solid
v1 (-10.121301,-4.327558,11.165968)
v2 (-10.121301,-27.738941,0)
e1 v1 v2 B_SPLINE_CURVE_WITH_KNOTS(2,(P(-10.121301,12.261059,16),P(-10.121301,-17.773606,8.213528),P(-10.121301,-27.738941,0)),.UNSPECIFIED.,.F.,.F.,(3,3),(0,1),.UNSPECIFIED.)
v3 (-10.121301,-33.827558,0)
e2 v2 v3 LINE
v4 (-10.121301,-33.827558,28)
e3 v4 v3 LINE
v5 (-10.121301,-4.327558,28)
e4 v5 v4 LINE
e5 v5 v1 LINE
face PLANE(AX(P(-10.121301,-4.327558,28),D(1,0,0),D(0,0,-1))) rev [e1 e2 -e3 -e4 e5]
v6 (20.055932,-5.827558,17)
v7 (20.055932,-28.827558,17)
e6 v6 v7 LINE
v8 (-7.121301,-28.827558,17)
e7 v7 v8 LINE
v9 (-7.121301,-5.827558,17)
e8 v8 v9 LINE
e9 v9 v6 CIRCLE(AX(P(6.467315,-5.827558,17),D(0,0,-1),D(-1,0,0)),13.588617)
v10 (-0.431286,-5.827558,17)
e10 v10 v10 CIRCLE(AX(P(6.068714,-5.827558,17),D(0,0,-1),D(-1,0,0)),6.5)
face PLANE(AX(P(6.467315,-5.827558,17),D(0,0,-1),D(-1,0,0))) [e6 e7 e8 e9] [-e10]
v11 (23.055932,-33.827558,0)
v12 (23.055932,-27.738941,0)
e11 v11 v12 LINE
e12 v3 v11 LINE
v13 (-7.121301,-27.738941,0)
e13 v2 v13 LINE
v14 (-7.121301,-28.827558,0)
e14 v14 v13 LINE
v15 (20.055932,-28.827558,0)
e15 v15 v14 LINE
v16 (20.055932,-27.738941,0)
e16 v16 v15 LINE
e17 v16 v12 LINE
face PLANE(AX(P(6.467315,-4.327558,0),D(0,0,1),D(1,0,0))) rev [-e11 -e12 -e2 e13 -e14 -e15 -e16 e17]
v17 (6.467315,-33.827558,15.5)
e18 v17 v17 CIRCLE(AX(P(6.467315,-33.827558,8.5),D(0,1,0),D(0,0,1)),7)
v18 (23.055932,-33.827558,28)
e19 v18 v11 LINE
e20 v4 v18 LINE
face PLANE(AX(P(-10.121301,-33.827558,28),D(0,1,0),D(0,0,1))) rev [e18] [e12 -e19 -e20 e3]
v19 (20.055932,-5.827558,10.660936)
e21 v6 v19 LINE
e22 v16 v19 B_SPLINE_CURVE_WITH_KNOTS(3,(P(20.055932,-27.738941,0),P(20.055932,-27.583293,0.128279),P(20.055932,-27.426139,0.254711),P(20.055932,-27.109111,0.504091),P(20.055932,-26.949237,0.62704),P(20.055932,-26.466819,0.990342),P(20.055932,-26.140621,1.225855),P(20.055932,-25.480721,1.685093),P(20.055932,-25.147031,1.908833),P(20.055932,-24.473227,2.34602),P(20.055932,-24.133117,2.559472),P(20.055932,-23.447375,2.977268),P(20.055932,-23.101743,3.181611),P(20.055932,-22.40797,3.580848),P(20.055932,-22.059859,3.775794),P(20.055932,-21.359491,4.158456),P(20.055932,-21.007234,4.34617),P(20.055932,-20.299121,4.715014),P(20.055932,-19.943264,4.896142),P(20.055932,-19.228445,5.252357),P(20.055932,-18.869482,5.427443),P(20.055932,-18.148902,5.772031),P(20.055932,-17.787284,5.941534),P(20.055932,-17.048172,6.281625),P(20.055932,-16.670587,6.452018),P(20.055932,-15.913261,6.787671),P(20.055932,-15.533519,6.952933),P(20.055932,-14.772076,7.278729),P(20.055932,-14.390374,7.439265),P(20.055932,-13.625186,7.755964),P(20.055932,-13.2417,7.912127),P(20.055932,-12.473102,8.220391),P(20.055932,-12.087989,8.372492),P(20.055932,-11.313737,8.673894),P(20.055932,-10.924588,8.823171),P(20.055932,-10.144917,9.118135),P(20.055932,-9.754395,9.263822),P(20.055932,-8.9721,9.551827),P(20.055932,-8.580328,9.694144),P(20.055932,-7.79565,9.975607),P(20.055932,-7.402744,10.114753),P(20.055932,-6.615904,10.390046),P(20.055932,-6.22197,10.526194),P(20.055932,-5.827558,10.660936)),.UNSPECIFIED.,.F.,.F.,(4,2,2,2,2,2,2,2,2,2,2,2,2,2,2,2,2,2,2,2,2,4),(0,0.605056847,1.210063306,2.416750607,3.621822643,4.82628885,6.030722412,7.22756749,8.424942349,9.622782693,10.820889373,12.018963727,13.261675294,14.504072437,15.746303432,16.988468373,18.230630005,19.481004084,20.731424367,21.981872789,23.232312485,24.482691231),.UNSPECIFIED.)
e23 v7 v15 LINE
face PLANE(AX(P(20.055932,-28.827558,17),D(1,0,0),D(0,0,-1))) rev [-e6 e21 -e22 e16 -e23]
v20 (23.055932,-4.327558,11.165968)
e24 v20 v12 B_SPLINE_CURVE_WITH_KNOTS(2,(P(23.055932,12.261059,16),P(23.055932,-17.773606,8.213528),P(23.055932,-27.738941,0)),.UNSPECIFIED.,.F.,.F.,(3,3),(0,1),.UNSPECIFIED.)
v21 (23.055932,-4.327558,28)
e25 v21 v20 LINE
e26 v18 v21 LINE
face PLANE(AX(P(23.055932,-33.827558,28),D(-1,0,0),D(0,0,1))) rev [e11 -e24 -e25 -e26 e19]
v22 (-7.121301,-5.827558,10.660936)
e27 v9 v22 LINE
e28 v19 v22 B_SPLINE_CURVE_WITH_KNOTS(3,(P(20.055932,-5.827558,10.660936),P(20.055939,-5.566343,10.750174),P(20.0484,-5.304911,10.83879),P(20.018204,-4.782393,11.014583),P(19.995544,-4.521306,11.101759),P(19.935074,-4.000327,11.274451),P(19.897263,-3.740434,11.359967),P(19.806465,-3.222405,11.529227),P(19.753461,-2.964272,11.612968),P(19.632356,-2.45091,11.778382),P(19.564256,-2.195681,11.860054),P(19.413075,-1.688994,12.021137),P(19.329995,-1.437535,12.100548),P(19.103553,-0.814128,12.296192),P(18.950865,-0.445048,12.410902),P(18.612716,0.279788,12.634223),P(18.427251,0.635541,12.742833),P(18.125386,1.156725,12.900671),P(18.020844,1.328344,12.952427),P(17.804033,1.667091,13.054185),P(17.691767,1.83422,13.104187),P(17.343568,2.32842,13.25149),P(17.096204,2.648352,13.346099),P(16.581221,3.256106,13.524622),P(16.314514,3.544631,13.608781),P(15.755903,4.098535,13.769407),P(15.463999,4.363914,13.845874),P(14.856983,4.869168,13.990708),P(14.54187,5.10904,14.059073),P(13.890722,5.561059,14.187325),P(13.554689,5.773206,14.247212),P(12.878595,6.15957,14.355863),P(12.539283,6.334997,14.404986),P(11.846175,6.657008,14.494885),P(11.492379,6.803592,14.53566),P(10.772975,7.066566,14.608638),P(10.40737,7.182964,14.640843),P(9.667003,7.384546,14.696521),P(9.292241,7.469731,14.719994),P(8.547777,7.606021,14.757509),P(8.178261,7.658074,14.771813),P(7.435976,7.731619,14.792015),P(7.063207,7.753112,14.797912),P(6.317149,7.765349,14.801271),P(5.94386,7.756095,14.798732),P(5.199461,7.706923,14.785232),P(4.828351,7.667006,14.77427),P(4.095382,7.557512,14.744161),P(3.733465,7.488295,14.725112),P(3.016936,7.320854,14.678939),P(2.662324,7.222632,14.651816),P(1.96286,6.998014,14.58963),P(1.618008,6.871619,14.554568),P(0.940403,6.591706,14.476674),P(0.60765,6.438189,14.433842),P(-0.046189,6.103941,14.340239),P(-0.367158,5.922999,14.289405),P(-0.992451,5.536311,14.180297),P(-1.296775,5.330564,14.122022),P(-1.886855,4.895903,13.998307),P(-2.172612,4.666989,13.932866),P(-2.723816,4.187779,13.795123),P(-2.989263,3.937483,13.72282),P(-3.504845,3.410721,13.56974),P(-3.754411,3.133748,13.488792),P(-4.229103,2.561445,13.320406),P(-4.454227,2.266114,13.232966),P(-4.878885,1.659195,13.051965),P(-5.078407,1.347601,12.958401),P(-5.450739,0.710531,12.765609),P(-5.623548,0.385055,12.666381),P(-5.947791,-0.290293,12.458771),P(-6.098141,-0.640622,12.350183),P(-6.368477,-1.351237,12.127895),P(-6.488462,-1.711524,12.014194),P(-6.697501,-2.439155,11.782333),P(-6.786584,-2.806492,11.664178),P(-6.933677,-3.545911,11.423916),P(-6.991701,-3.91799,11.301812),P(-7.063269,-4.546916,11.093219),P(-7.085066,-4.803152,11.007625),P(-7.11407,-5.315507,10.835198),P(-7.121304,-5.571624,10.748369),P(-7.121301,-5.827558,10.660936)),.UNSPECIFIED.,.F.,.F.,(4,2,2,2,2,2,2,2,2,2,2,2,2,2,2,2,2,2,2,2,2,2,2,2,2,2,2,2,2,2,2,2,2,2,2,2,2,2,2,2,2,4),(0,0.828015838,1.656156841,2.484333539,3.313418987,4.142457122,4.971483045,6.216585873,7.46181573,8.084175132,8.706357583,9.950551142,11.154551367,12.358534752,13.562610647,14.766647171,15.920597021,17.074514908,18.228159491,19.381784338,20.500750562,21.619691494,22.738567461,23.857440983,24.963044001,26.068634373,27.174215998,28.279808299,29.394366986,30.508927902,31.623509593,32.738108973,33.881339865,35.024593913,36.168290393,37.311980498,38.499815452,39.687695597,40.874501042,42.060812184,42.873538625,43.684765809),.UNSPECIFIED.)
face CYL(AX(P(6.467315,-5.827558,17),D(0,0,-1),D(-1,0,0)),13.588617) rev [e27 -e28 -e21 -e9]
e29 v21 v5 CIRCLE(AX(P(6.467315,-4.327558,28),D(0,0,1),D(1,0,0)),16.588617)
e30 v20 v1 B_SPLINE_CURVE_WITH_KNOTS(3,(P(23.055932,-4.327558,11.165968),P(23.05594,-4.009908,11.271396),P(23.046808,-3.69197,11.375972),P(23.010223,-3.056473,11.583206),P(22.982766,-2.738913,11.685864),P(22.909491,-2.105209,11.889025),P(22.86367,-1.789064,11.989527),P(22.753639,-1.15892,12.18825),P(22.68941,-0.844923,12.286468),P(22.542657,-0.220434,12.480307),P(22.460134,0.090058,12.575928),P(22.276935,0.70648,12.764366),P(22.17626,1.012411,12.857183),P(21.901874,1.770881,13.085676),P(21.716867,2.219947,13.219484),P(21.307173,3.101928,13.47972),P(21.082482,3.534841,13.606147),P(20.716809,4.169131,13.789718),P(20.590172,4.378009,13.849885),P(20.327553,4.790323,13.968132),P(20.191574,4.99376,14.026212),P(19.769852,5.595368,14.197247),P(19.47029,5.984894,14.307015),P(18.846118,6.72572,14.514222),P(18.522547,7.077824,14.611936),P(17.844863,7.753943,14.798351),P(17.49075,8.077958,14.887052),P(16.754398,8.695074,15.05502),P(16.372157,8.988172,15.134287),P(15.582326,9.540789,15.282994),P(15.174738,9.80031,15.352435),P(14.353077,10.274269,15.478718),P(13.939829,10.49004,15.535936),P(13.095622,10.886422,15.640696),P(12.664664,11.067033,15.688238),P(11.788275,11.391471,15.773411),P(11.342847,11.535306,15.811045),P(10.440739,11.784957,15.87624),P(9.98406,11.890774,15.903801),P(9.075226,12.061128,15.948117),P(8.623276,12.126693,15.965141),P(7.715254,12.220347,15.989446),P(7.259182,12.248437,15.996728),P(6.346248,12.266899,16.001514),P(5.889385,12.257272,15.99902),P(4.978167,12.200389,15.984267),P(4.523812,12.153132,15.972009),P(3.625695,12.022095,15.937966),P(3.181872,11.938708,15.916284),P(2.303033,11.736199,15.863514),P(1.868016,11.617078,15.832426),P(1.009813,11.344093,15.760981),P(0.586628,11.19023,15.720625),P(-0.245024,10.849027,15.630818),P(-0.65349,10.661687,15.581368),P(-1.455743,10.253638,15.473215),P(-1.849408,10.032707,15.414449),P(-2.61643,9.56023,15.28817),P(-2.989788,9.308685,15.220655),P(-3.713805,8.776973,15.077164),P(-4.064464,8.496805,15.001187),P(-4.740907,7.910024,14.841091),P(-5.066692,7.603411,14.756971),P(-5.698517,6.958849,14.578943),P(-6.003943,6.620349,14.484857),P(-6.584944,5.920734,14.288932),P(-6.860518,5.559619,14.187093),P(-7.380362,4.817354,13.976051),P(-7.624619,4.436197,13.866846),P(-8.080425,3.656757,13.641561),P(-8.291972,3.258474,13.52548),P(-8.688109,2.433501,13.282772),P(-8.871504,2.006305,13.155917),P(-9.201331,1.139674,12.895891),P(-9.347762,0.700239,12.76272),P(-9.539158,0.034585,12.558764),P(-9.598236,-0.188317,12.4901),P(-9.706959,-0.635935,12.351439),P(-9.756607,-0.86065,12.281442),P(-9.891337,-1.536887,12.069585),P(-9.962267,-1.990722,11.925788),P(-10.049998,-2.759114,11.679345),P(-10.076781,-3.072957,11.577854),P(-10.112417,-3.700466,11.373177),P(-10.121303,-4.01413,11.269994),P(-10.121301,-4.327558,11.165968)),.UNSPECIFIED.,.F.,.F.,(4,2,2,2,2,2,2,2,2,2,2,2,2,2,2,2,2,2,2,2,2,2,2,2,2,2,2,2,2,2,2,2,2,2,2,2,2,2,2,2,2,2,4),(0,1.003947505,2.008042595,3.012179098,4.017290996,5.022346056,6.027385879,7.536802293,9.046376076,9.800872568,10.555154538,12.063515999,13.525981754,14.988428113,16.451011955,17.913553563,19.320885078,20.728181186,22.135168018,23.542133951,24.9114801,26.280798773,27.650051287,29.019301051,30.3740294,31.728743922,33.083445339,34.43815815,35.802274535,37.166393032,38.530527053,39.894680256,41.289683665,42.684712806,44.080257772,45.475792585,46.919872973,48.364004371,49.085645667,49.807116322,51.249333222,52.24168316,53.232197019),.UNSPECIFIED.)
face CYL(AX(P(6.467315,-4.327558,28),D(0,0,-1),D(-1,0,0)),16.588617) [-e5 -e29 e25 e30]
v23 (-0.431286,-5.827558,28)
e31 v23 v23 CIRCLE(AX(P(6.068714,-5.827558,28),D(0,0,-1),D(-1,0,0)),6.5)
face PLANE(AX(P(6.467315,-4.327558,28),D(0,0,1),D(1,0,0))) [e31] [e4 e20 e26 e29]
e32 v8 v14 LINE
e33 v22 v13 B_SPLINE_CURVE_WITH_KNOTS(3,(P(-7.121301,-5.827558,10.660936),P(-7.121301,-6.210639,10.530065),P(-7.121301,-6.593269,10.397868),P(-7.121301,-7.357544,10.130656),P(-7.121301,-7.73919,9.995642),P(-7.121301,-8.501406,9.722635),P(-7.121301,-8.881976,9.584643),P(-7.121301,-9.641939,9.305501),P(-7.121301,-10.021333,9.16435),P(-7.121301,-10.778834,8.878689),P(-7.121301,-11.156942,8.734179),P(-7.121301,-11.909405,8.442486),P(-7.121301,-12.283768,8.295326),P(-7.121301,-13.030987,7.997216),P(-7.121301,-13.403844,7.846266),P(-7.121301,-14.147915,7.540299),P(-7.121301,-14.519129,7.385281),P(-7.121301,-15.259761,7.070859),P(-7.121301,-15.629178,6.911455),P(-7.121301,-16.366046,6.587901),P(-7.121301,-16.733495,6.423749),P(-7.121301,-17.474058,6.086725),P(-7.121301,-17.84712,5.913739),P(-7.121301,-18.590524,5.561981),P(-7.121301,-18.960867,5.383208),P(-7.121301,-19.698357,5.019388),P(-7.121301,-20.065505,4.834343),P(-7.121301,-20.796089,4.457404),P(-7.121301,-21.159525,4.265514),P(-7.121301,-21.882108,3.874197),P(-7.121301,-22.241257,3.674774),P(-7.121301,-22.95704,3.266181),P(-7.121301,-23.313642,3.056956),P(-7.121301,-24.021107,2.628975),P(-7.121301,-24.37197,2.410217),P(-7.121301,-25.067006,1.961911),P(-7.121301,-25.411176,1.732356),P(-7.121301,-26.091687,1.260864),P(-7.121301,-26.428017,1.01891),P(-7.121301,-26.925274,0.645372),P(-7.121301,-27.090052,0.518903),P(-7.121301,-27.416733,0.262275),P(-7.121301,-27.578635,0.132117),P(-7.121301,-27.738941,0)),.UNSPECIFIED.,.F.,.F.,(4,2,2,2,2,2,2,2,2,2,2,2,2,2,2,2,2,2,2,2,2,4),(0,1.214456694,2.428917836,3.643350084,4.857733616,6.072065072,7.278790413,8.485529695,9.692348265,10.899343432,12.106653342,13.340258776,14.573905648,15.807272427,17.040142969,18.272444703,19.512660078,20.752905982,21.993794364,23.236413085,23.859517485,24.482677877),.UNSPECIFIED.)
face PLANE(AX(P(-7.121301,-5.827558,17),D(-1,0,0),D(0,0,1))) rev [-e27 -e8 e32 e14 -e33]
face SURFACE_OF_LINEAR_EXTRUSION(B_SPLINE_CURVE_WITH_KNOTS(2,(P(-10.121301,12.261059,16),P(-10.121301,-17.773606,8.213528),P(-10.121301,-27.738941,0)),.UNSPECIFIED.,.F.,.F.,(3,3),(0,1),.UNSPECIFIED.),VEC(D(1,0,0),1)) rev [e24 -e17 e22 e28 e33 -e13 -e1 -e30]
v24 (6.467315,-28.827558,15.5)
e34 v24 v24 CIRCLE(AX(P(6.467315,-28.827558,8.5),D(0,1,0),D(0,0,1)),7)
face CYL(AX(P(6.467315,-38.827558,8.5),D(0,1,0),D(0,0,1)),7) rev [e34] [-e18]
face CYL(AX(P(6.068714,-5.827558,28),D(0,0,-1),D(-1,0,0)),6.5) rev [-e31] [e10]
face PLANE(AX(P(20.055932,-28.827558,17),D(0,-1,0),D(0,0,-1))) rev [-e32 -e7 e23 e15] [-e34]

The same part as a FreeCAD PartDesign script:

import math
import FreeCAD as App
import Part
import Sketcher

doc = App.newDocument("Part")
body = doc.addObject("PartDesign::Body", "Body")

# Sketch on XY plane
sketch1 = body.newObject("Sketcher::SketchObject", "Sketch")
sketch1.AttachmentSupport = (doc.getObject("XY_Plane"), [""])
sketch1.MapMode = "FlatFace"
sketch1.addGeometry([
    Part.LineSegment(App.Vector(-10, -4, 0), App.Vector(-10, -34, 0)),
    Part.LineSegment(App.Vector(-10, -34, 0), App.Vector(23, -34, 0)),
    Part.LineSegment(App.Vector(23, -34, 0), App.Vector(23, -4, 0)),
    Part.ArcOfCircle(Part.Circle(App.Vector(6, -4, 0), App.Vector(0, 0, 1), 17), math.radians(0), math.radians(180)),
], False)
sketch1.addConstraint([
    Sketcher.Constraint("Coincident", 0, 2, 1, 1),
    Sketcher.Constraint("Coincident", 1, 2, 2, 1),
    Sketcher.Constraint("Tangent", 2, 2, 3, 1),
    Sketcher.Constraint("Tangent", 3, 2, 0, 1),
    Sketcher.Constraint("Vertical", 0),
    Sketcher.Constraint("Horizontal", 1),
    Sketcher.Constraint("Vertical", 2),
    Sketcher.Constraint("DistanceY", 0, 2, 0, 1, 29.5),
    Sketcher.Constraint("Radius", 3, 16.588617),
    Sketcher.Constraint("DistanceX", 0, 2, -1, 1, 10.121301),
    Sketcher.Constraint("DistanceY", 3, 3, -1, 1, 4.327558),
])
pad1 = body.newObject("PartDesign::Pad", "Pad")
pad1.Profile = sketch1
pad1.Length = 28

# Sketch on YZ plane
sketch2 = body.newObject("Sketcher::SketchObject", "Sketch001")
sketch2.AttachmentSupport = (doc.getObject("YZ_Plane"), [""])
sketch2.MapMode = "FlatFace"
sketch2.AttachmentOffset = App.Placement(App.Vector(0, 0, 23.055932), App.Rotation())
sketch2.addGeometry([
    Part.BSplineCurve([App.Vector(-27.738941, 0, 0), App.Vector(-17.773606, 8.213528, 0), App.Vector(12.261059, 16, 0)], [3, 3], [0, 1], False, 2, [1, 1, 1], False),
    Part.LineSegment(App.Vector(-27.738941, 0, 0), App.Vector(12.261059, 0, 0)),
    Part.LineSegment(App.Vector(12.261059, 0, 0), App.Vector(12.261059, 16, 0)),
], False)
sketch2.addConstraint([
    Sketcher.Constraint("Block", 0),
    Sketcher.Constraint("Coincident", 0, 1, 1, 1),
    Sketcher.Constraint("Coincident", 1, 2, 2, 1),
    Sketcher.Constraint("Coincident", 2, 2, 0, 2),
    Sketcher.Constraint("Horizontal", 1),
    Sketcher.Constraint("Vertical", 2),
])
pocket1 = body.newObject("PartDesign::Pocket", "Pocket")
pocket1.Profile = sketch2
pocket1.Type = "ThroughAll"

# Sketch on XY plane
sketch3 = body.newObject("Sketcher::SketchObject", "Sketch002")
sketch3.AttachmentSupport = (doc.getObject("XY_Plane"), [""])
sketch3.MapMode = "FlatFace"
sketch3.addGeometry([
    Part.LineSegment(App.Vector(20, -6, 0), App.Vector(20, -29, 0)),
    Part.LineSegment(App.Vector(20, -29, 0), App.Vector(-7, -29, 0)),
    Part.LineSegment(App.Vector(-7, -29, 0), App.Vector(-7, -6, 0)),
    Part.ArcOfCircle(Part.Circle(App.Vector(6, -6, 0), App.Vector(0, 0, 1), 14), math.radians(0), math.radians(180)),
], False)
sketch3.addConstraint([
    Sketcher.Constraint("Coincident", 0, 2, 1, 1),
    Sketcher.Constraint("Coincident", 1, 2, 2, 1),
    Sketcher.Constraint("Tangent", 2, 2, 3, 2),
    Sketcher.Constraint("Tangent", 3, 1, 0, 1),
    Sketcher.Constraint("Vertical", 0),
    Sketcher.Constraint("Horizontal", 1),
    Sketcher.Constraint("Vertical", 2),
    Sketcher.Constraint("DistanceY", 0, 2, 0, 1, 23.0),
    Sketcher.Constraint("Radius", 3, 13.588617),
    Sketcher.Constraint("DistanceX", 1, 2, -1, 1, 7.121301),
    Sketcher.Constraint("DistanceY", 3, 3, -1, 1, 5.827558),
])
pocket2 = body.newObject("PartDesign::Pocket", "Pocket001")
pocket2.Profile = sketch3
pocket2.Length = 17
pocket2.Reversed = True

# Sketch on XY plane
sketch4 = body.newObject("Sketcher::SketchObject", "Sketch003")
sketch4.AttachmentSupport = (doc.getObject("XY_Plane"), [""])
sketch4.MapMode = "FlatFace"
sketch4.addGeometry(Part.Circle(App.Vector(6, -6, 0), App.Vector(0, 0, 1), 6), False)
sketch4.addConstraint([
    Sketcher.Constraint("Diameter", 0, 13.0),
    Sketcher.Constraint("DistanceX", -1, 1, 0, 3, 6.068714),
    Sketcher.Constraint("DistanceY", 0, 3, -1, 1, 5.827558),
])
pocket3 = body.newObject("PartDesign::Pocket", "Pocket002")
pocket3.Profile = sketch4
pocket3.Type = "ThroughAll"
pocket3.Reversed = True

# Sketch on XZ plane
sketch5 = body.newObject("Sketcher::SketchObject", "Sketch004")
sketch5.AttachmentSupport = (doc.getObject("XZ_Plane"), [""])
sketch5.MapMode = "FlatFace"
sketch5.AttachmentOffset = App.Placement(App.Vector(0, 0, 28.827558), App.Rotation())
sketch5.addGeometry(Part.Circle(App.Vector(6, 8, 0), App.Vector(0, 0, 1), 7), False)
sketch5.addConstraint([
    Sketcher.Constraint("Diameter", 0, 14.0),
    Sketcher.Constraint("DistanceY", -1, 1, 0, 3, 8.5),
    Sketcher.Constraint("DistanceX", -1, 1, 0, 3, 6.467315),
])
pocket4 = body.newObject("PartDesign::Pocket", "Pocket003")
pocket4.Profile = sketch5
pocket4.Length = 10
pocket4.Reversed = True

doc.recompute()
